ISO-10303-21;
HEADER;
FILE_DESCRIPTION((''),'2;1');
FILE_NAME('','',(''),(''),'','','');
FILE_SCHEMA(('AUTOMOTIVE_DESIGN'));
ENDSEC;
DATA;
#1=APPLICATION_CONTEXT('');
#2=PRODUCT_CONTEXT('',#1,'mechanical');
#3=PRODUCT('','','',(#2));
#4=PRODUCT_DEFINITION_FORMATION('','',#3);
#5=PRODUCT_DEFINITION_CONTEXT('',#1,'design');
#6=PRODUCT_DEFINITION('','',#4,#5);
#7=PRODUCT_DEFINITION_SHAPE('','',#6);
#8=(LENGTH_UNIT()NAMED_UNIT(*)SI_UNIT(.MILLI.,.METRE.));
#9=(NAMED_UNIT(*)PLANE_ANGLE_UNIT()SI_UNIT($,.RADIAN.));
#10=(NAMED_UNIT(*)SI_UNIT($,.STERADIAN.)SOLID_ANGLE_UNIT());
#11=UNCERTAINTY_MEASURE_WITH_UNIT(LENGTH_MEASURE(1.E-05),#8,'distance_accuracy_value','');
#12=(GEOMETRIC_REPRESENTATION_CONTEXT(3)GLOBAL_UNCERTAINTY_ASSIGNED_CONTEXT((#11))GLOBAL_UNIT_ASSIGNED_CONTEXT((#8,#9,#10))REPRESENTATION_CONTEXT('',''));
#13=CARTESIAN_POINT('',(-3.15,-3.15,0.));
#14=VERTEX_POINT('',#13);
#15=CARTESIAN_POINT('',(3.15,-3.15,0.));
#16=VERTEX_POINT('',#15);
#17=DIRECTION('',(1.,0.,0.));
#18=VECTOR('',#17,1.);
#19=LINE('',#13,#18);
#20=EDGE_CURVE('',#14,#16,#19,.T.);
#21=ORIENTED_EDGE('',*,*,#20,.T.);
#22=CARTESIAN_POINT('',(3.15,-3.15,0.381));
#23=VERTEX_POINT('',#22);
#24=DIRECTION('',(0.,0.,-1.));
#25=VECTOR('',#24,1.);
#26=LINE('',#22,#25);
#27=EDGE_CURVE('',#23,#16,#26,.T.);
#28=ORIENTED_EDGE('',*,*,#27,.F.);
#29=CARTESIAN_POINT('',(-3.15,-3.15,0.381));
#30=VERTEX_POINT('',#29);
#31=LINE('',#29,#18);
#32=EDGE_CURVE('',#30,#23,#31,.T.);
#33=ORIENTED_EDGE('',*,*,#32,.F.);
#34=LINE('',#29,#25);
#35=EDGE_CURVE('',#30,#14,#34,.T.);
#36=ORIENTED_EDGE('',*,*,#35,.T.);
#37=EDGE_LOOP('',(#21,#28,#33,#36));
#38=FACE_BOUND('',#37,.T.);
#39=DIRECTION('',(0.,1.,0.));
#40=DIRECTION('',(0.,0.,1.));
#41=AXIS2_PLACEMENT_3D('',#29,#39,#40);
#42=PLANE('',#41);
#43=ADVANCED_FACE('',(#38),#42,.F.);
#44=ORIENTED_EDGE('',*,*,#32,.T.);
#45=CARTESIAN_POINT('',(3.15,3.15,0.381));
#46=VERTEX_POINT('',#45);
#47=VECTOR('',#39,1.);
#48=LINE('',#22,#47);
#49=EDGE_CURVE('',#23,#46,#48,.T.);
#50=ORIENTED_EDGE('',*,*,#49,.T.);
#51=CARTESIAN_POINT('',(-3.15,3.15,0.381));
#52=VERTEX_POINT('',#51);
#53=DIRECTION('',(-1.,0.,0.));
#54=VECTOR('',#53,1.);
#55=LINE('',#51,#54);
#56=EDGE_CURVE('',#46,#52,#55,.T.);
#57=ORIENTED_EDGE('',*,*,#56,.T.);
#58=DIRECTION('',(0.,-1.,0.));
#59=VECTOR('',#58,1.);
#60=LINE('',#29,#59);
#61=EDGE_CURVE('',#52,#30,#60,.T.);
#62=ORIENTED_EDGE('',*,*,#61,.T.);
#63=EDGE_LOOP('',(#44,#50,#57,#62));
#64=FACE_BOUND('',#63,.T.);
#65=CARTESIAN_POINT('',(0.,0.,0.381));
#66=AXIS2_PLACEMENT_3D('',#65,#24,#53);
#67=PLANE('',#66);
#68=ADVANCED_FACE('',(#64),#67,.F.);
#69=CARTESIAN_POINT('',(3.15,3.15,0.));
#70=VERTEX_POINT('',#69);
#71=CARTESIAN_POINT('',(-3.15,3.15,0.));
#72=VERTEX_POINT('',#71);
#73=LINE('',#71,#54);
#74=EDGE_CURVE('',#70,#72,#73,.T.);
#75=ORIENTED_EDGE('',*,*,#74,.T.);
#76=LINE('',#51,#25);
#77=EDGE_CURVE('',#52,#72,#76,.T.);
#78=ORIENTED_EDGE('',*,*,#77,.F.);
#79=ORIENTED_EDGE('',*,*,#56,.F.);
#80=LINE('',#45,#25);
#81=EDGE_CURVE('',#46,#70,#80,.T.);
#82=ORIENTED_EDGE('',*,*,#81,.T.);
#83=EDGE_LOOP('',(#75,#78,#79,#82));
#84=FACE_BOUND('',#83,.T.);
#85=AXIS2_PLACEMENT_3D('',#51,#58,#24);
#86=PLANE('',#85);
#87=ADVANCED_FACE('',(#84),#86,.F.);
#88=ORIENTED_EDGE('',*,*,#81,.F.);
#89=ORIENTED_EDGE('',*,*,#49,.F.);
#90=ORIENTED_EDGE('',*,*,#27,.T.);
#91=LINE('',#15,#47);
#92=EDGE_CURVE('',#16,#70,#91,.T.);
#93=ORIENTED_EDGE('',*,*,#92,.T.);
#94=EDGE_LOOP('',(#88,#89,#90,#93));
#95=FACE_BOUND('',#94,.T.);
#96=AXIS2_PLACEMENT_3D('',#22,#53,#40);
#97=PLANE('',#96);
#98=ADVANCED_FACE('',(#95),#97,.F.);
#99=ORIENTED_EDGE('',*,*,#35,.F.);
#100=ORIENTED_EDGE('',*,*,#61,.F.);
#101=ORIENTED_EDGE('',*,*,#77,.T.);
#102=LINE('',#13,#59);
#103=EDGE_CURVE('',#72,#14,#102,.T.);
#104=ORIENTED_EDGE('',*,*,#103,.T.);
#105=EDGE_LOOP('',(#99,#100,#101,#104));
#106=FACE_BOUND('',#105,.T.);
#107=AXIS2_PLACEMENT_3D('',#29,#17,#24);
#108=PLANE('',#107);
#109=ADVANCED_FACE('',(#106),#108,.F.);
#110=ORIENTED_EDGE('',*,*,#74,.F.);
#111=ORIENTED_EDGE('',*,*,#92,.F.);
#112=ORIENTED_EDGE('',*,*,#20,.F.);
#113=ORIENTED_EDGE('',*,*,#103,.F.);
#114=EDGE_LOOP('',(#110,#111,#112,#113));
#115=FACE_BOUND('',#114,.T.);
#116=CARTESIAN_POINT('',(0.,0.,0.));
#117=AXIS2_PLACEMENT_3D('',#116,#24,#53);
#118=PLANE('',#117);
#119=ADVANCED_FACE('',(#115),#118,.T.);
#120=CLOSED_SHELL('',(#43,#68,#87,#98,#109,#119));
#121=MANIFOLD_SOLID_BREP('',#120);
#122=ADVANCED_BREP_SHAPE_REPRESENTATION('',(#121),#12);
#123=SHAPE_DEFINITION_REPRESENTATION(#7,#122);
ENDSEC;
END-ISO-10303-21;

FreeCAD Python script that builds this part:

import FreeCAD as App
import Part
import Sketcher

V = App.Vector


def add_polygon(sketch, points):
    """Adds a closed chain of lines whose ends are joined by coincident constraints."""
    first, n = sketch.GeometryCount, len(points)
    for a, b in zip(points, points[1:] + points[:1]):
        sketch.addGeometry(Part.LineSegment(App.Vector(*a, 0), App.Vector(*b, 0)), False)
    for i in range(n):
        sketch.addConstraint(Sketcher.Constraint("Coincident", first + i, 2, first + (i + 1) % n, 1))

doc = App.newDocument("Part")
body = doc.addObject("PartDesign::Body", "Body")

sketch1 = body.newObject("Sketcher::SketchObject", "Sketch")
sketch1.AttachmentSupport = (doc.getObject("XY_Plane"), [""])
sketch1.MapMode = "FlatFace"
add_polygon(sketch1, [(-3.15, 3.15), (-3.15, -3.15), (3.15, -3.15), (3.15, 3.15)])
sketch1.addConstraint(Sketcher.Constraint("Vertical", 0))
sketch1.addConstraint(Sketcher.Constraint("Horizontal", 1))
sketch1.addConstraint(Sketcher.Constraint("Vertical", 2))
sketch1.addConstraint(Sketcher.Constraint("Horizontal", 3))
sketch1.addConstraint(Sketcher.Constraint("Symmetric", 0, 2, 2, 2, -1, 1))
sketch1.addConstraint(Sketcher.Constraint("Equal", 3, 0))
sketch1.addConstraint(Sketcher.Constraint("DistanceX", 1, 1, 1, 2, 6.3))
pad1 = body.newObject("PartDesign::Pad", "Pad")
pad1.Profile = sketch1
pad1.Length = 0.381

doc.recompute()
